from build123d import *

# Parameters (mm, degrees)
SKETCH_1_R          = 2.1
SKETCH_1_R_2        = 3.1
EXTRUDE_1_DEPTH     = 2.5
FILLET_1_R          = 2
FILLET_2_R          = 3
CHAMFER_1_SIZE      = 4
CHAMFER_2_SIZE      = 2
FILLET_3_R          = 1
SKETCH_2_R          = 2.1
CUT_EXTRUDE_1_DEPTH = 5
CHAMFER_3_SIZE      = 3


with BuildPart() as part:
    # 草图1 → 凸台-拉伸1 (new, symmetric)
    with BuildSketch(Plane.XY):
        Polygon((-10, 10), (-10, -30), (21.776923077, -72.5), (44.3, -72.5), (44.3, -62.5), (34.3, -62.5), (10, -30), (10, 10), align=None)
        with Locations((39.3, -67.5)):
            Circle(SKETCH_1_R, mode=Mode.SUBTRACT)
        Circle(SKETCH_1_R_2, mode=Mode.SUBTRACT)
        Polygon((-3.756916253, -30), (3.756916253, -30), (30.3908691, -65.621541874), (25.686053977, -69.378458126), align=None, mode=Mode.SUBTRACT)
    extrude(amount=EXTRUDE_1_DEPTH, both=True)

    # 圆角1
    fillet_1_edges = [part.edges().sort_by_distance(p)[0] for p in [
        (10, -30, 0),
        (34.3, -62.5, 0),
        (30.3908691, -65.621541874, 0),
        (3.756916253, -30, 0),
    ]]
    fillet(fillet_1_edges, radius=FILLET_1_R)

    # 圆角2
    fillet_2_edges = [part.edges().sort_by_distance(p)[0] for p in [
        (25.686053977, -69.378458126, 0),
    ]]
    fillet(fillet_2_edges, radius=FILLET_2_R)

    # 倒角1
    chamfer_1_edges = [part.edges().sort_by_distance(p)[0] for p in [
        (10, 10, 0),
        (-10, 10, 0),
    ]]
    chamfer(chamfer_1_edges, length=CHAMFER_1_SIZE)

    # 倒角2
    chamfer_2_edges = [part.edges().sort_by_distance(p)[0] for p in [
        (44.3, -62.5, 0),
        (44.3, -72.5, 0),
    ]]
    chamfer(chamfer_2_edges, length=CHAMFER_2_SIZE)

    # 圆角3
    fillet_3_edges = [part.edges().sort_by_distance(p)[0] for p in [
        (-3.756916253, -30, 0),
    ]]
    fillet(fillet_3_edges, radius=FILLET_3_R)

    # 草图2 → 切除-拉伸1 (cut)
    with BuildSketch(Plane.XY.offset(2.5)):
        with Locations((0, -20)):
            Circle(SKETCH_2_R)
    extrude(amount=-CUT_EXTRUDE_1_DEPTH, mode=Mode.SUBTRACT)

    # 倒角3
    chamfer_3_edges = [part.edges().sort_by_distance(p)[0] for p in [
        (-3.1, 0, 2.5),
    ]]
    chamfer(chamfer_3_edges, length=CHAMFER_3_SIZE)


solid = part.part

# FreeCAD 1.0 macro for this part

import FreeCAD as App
import Part
import Sketcher
from FreeCAD import Vector
Q = App.Units.Quantity


def edges_at(feature, points):
    """Names of the edges that pass closest to the given points."""
    edges = feature.Shape.Edges
    near = lambda p: min(range(len(edges)), key=lambda i: edges[i].distToShape(Part.Vertex(*p))[0])
    return sorted({f"Edge{near(p) + 1}" for p in points})


def add_polygon(sketch, points):
    """Adds a closed chain of lines whose ends are joined by coincident constraints."""
    first, n = sketch.GeometryCount, len(points)
    for a, b in zip(points, points[1:] + points[:1]):
        sketch.addGeometry(Part.LineSegment(App.Vector(*a, 0), App.Vector(*b, 0)), False)
    for i in range(n):
        sketch.addConstraint(Sketcher.Constraint("Coincident", first + i, 2, first + (i + 1) % n, 1))

doc = App.newDocument("Part")
params = doc.addObject("Spreadsheet::Sheet", "Params")
for row, (alias, value) in enumerate([
    ("sketch1_diameter", "4.2 mm"),
    ("sketch1_diameter2", "6.2 mm"),
    ("sketch1_width", "10 mm"),
    ("sketch1_width2", "20 mm"),
    ("sketch1_height", "40 mm"),
    ("pad1_length", "5 mm"),
    ("fillet_radius", "2 mm"),
    ("fillet2_radius", "3 mm"),
    ("chamfer_size", "4 mm"),
    ("chamfer2_size", "2 mm"),
    ("fillet3_radius", "1 mm"),
    ("sketch2_diameter", "4.2 mm"),
    ("pocket1_length", "5 mm"),
    ("chamfer3_size", "3 mm"),
], start=1):
    params.set(f"A{row}", alias)
    params.set(f"B{row}", "=" + value)
    params.setAlias(f"B{row}", alias)

body = doc.addObject("PartDesign::Body", "Body")

# Sketch on XY plane
sketch1 = body.newObject("Sketcher::SketchObject", "Sketch")
sketch1.AttachmentSupport = (doc.getObject("XY_Plane"), [""])
sketch1.MapMode = "FlatFace"
add_polygon(sketch1, [(-10, 10), (-10, -30), (21.776923, -72.5), (44.3, -72.5), (44.3, -62.5), (34.3, -62.5), (10, -30), (10, 10)])  # lines 0-7
add_polygon(sketch1, [(25.686054, -69.378458), (-3.756916, -30), (3.756916, -30), (30.390869, -65.621542)])  # lines 8-11
sketch1.addGeometry(Part.Circle(Vector(39.3, -67.5, 0), Vector(0, 0, 1), 2.1), False)  # 12
sketch1.addGeometry(Part.Circle(Vector(0, 0, 0), Vector(0, 0, 1), 3.1), False)  # 13
sketch1.addConstraint(Sketcher.Constraint("Vertical", 0))
sketch1.addConstraint(Sketcher.Constraint("Horizontal", 2))
sketch1.addConstraint(Sketcher.Constraint("Vertical", 3))
sketch1.addConstraint(Sketcher.Constraint("Horizontal", 4))
sketch1.addConstraint(Sketcher.Constraint("Vertical", 6))
sketch1.addConstraint(Sketcher.Constraint("Horizontal", 7))
sketch1.addConstraint(Sketcher.Constraint("Horizontal", 9))
sketch1.addConstraint(Sketcher.Constraint("Coincident", 13, 3, -1, 1))
sketch1.addConstraint(Sketcher.Constraint("Symmetric", 0, 2, 5, 2, -2))
sketch1.addConstraint(Sketcher.Constraint("Parallel", 1, 5))
sketch1.addConstraint(Sketcher.Constraint("Parallel", 5, 8))
sketch1.addConstraint(Sketcher.Constraint("Parallel", 8, 10))
sketch1.addConstraint(Sketcher.Constraint("Horizontal", 5, 2, 8, 2))
sketch1.addConstraint(Sketcher.Constraint("Equal", 4, 3))
sketch1.addConstraint(Sketcher.Constraint("Diameter", 12, Q("4.2 mm")))
sketch1.addConstraint(Sketcher.Constraint("Diameter", 13, Q("6.2 mm")))
sketch1.addConstraint(Sketcher.Constraint("DistanceX", 4, 2, 4, 1, Q("10 mm")))
sketch1.addConstraint(Sketcher.Constraint("DistanceX", 7, 2, 7, 1, Q("20 mm")))
sketch1.addConstraint(Sketcher.Constraint("DistanceY", 0, 2, 0, 1, Q("40 mm")))
sketch1.addConstraint(Sketcher.Constraint("DistanceY", 0, 2, -1, 1, Q("30 mm")))
sketch1.addConstraint(Sketcher.Constraint("DistanceY", 1, 2, 12, 3, Q("5 mm")))
sketch1.addConstraint(Sketcher.Constraint("DistanceX", 12, 3, 2, 2, Q("5 mm")))
sketch1.addConstraint(Sketcher.Constraint("DistanceX", -1, 1, 12, 3, Q("39.3 mm")))
sketch1.addConstraint(Sketcher.Constraint("DistanceY", 12, 3, -1, 1, Q("67.5 mm")))
sketch1.addConstraint(Sketcher.Constraint("DistanceX", 9, 1, 9, 2, Q("7.513833 mm")))
sketch1.addConstraint(Sketcher.Constraint("DistanceX", -1, 1, 10, 2, Q("30.390869 mm")))
sketch1.addConstraint(Sketcher.Constraint("DistanceY", 10, 2, -1, 1, Q("65.621542 mm")))
sketch1.addConstraint(Sketcher.Constraint("DistanceY", 11, 2, -1, 1, Q("69.378458 mm")))
sketch1.setExpression("Constraints[26]", "Params.sketch1_diameter")
sketch1.setExpression("Constraints[27]", "Params.sketch1_diameter2")
sketch1.setExpression("Constraints[28]", "Params.sketch1_width")
sketch1.setExpression("Constraints[29]", "Params.sketch1_width2")
sketch1.setExpression("Constraints[30]", "Params.sketch1_height")
pad1 = body.newObject("PartDesign::Pad", "Pad")
pad1.Profile = sketch1
pad1.setExpression("Length", "Params.pad1_length")
pad1.Midplane = True
doc.recompute()

fillet = body.newObject("PartDesign::Fillet", "Fillet")
fillet.Base = (pad1, edges_at(pad1, [
    (10, -30, 0),
    (34.3, -62.5, 0),
    (30.391, -65.622, 0),
    (3.757, -30, 0),
]))
fillet.setExpression("Radius", "Params.fillet_radius")
doc.recompute()

fillet2 = body.newObject("PartDesign::Fillet", "Fillet001")
fillet2.Base = (fillet, edges_at(fillet, [(25.686, -69.378, 0)]))
fillet2.setExpression("Radius", "Params.fillet2_radius")
doc.recompute()

chamfer = body.newObject("PartDesign::Chamfer", "Chamfer")
chamfer.Base = (fillet2, edges_at(fillet2, [(10, 10, 0), (-10, 10, 0)]))
chamfer.setExpression("Size", "Params.chamfer_size")
doc.recompute()

chamfer2 = body.newObject("PartDesign::Chamfer", "Chamfer001")
chamfer2.Base = (chamfer, edges_at(chamfer, [(44.3, -62.5, 0), (44.3, -72.5, 0)]))
chamfer2.setExpression("Size", "Params.chamfer2_size")
doc.recompute()

fillet3 = body.newObject("PartDesign::Fillet", "Fillet002")
fillet3.Base = (chamfer2, edges_at(chamfer2, [(-3.757, -30, 0)]))
fillet3.setExpression("Radius", "Params.fillet3_radius")

# Sketch on XY plane
sketch2 = body.newObject("Sketcher::SketchObject", "Sketch001")
sketch2.AttachmentSupport = (doc.getObject("XY_Plane"), [""])
sketch2.MapMode = "FlatFace"
sketch2.AttachmentOffset = App.Placement(Vector(0, 0, 2.5), App.Rotation())
sketch2.addGeometry(Part.Circle(Vector(0, -20, 0), Vector(0, 0, 1), 2.1), False)
sketch2.addConstraint(Sketcher.Constraint("PointOnObject", 0, 3, -2))
sketch2.addConstraint(Sketcher.Constraint("Diameter", 0, Q("4.2 mm")))
sketch2.addConstraint(Sketcher.Constraint("DistanceY", 0, 3, -1, 1, Q("20 mm")))
sketch2.setExpression("Constraints[1]", "Params.sketch2_diameter")
pocket1 = body.newObject("PartDesign::Pocket", "Pocket")
pocket1.Profile = sketch2
pocket1.setExpression("Length", "Params.pocket1_length")
doc.recompute()

chamfer3 = body.newObject("PartDesign::Chamfer", "Chamfer002")
chamfer3.Base = (pocket1, edges_at(pocket1, [(-3.1, 0, 2.5)]))
chamfer3.setExpression("Size", "Params.chamfer3_size")

doc.recompute()
